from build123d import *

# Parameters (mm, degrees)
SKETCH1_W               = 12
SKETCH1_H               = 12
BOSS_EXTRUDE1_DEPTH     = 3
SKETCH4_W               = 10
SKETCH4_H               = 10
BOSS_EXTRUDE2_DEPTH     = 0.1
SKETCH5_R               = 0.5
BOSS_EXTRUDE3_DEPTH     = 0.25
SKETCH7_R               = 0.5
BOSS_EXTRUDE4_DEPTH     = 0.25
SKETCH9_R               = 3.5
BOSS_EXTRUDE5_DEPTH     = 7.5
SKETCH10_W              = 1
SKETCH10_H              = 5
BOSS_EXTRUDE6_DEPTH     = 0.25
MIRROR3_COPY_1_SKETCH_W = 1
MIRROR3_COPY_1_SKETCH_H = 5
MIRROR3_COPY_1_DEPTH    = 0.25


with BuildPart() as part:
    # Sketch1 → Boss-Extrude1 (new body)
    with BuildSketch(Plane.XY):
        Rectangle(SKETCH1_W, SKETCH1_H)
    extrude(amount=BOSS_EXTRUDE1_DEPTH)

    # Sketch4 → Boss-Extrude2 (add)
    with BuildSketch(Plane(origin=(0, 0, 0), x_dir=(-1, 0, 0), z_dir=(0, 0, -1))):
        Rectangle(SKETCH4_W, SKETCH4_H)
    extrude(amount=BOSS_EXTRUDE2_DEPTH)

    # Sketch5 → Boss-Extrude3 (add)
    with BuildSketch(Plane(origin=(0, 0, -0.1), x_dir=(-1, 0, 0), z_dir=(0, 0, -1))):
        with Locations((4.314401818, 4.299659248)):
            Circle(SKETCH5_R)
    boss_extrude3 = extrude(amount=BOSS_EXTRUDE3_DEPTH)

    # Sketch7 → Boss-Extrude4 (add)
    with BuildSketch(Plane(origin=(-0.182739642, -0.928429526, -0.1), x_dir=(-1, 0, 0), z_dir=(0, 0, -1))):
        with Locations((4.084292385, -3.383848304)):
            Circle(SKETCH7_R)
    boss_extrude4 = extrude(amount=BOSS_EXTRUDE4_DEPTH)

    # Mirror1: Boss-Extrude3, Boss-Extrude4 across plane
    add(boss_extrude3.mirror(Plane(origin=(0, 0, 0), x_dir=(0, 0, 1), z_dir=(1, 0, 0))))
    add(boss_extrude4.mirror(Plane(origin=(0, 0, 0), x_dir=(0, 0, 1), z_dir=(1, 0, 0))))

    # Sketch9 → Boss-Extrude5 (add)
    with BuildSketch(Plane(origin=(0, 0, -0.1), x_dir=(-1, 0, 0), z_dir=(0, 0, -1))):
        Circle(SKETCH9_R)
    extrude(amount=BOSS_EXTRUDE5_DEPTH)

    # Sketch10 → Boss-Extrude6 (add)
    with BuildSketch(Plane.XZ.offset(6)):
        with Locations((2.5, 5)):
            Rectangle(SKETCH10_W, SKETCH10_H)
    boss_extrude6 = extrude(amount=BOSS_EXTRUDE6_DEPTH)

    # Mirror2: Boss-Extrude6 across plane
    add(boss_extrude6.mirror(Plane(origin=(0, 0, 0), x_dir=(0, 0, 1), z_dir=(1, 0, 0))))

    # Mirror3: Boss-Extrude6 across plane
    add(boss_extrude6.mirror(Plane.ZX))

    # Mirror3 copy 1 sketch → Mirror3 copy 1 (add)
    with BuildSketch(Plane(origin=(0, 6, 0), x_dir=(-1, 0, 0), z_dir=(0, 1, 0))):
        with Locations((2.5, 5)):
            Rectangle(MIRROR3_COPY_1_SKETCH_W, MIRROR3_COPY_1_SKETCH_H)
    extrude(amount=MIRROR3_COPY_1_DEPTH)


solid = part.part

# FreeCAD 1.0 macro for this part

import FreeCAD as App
import Part
import Sketcher
from FreeCAD import Vector


def add_polygon(sketch, points):
    """Adds a closed chain of lines whose ends are joined by coincident constraints."""
    first, n = sketch.GeometryCount, len(points)
    for a, b in zip(points, points[1:] + points[:1]):
        sketch.addGeometry(Part.LineSegment(App.Vector(*a, 0), App.Vector(*b, 0)), False)
    for i in range(n):
        sketch.addConstraint(Sketcher.Constraint("Coincident", first + i, 2, first + (i + 1) % n, 1))

doc = App.newDocument("Part")
body = doc.addObject("PartDesign::Body", "Body")

# Sketch on XY plane
sketch1 = body.newObject("Sketcher::SketchObject", "Sketch")
sketch1.AttachmentSupport = (doc.getObject("XY_Plane"), [""])
sketch1.MapMode = "FlatFace"
add_polygon(sketch1, [(-6, 6), (-6, -6), (6, -6), (6, 6)])  # lines 0-3
sketch1.addConstraint([
    Sketcher.Constraint("Vertical", 0),
    Sketcher.Constraint("Horizontal", 1),
    Sketcher.Constraint("Vertical", 2),
    Sketcher.Constraint("Horizontal", 3),
    Sketcher.Constraint("Symmetric", 0, 2, 2, 2, -1, 1),
    Sketcher.Constraint("Equal", 3, 0),
    Sketcher.Constraint("DistanceX", 1, 1, 1, 2, 12.0),
])
pad1 = body.newObject("PartDesign::Pad", "Pad")
pad1.Profile = sketch1
pad1.Length = 3

# Sketch on XY plane
sketch2 = body.newObject("Sketcher::SketchObject", "Sketch001")
sketch2.AttachmentSupport = (doc.getObject("XY_Plane"), [""])
sketch2.MapMode = "FlatFace"
add_polygon(sketch2, [(5, 5), (5, -5), (-5, -5), (-5, 5)])  # lines 0-3
sketch2.addConstraint([
    Sketcher.Constraint("Vertical", 0),
    Sketcher.Constraint("Horizontal", 1),
    Sketcher.Constraint("Vertical", 2),
    Sketcher.Constraint("Horizontal", 3),
    Sketcher.Constraint("Symmetric", 0, 2, 2, 2, -1, 1),
    Sketcher.Constraint("Equal", 3, 0),
    Sketcher.Constraint("DistanceX", 1, 2, 1, 1, 10.0),
])
pad2 = body.newObject("PartDesign::Pad", "Pad001")
pad2.Profile = sketch2
pad2.Length = 0.1
pad2.Reversed = True

# Sketch on XY plane
sketch3 = body.newObject("Sketcher::SketchObject", "Sketch002")
sketch3.AttachmentSupport = (doc.getObject("XY_Plane"), [""])
sketch3.MapMode = "FlatFace"
sketch3.AttachmentOffset = App.Placement(Vector(0, 0, -0.1), App.Rotation())
sketch3.addGeometry(Part.Circle(Vector(-4.3, 4.3, 0), Vector(0, 0, 1), 0.5), False)
sketch3.addConstraint([
    Sketcher.Constraint("Diameter", 0, 1.0),
    Sketcher.Constraint("DistanceX", 0, 3, -1, 1, 4.314402),
    Sketcher.Constraint("DistanceY", -1, 1, 0, 3, 4.299659),
])
pad3 = body.newObject("PartDesign::Pad", "Pad002")
pad3.Profile = sketch3
pad3.Length = 0.25
pad3.Reversed = True

# Sketch on XY plane
sketch4 = body.newObject("Sketcher::SketchObject", "Sketch003")
sketch4.AttachmentSupport = (doc.getObject("XY_Plane"), [""])
sketch4.MapMode = "FlatFace"
sketch4.AttachmentOffset = App.Placement(Vector(0, 0, -0.1), App.Rotation())
sketch4.addGeometry(Part.Circle(Vector(-4.3, -4.3, 0), Vector(0, 0, 1), 0.5), False)
sketch4.addConstraint([
    Sketcher.Constraint("Diameter", 0, 1.0),
    Sketcher.Constraint("DistanceX", 0, 3, -1, 1, 4.267032),
    Sketcher.Constraint("DistanceY", 0, 3, -1, 1, 4.312278),
])
pad4 = body.newObject("PartDesign::Pad", "Pad003")
pad4.Profile = sketch4
pad4.Length = 0.25
pad4.Reversed = True
doc.recompute()

mirrored = body.newObject("PartDesign::Mirrored", "Mirrored")
mirrored.Originals = [pad3, pad4]
mirrored.MirrorPlane = (doc.getObject("YZ_Plane"), [""])
body.Tip = mirrored

# Sketch on XY plane
sketch5 = body.newObject("Sketcher::SketchObject", "Sketch004")
sketch5.AttachmentSupport = (doc.getObject("XY_Plane"), [""])
sketch5.MapMode = "FlatFace"
sketch5.AttachmentOffset = App.Placement(Vector(0, 0, -0.1), App.Rotation())
sketch5.addGeometry(Part.Circle(Vector(0, 0, 0), Vector(0, 0, 1), 3.5), False)
sketch5.addConstraint([
    Sketcher.Constraint("Coincident", 0, 3, -1, 1),
    Sketcher.Constraint("Diameter", 0, 7.0),
])
pad5 = body.newObject("PartDesign::Pad", "Pad004")
pad5.Profile = sketch5
pad5.Length = 7.5
pad5.Reversed = True

# Sketch on XZ plane
sketch6 = body.newObject("Sketcher::SketchObject", "Sketch005")
sketch6.AttachmentSupport = (doc.getObject("XZ_Plane"), [""])
sketch6.MapMode = "FlatFace"
sketch6.AttachmentOffset = App.Placement(Vector(0, 0, 6), App.Rotation())
add_polygon(sketch6, [(2, 7.5), (2, 2.5), (3, 2.5), (3, 7.5)])  # lines 0-3
sketch6.addConstraint([
    Sketcher.Constraint("Vertical", 0),
    Sketcher.Constraint("Horizontal", 1),
    Sketcher.Constraint("Vertical", 2),
    Sketcher.Constraint("Horizontal", 3),
    Sketcher.Constraint("DistanceX", 1, 1, 1, 2, 1.0),
    Sketcher.Constraint("DistanceY", 0, 2, 0, 1, 5.0),
    Sketcher.Constraint("DistanceX", -1, 1, 0, 2, 2.0),
    Sketcher.Constraint("DistanceY", -1, 1, 0, 2, 2.5),
])
pad6 = body.newObject("PartDesign::Pad", "Pad005")
pad6.Profile = sketch6
pad6.Length = 0.25
doc.recompute()

mirrored2 = body.newObject("PartDesign::Mirrored", "Mirrored001")
mirrored2.Originals = [pad6]
mirrored2.MirrorPlane = (doc.getObject("YZ_Plane"), [""])
body.Tip = mirrored2
doc.recompute()

mirrored3 = body.newObject("PartDesign::Mirrored", "Mirrored002")
mirrored3.Originals = [pad6]
mirrored3.MirrorPlane = (doc.getObject("XZ_Plane"), [""])
body.Tip = mirrored3

# Sketch on XZ plane
sketch7 = body.newObject("Sketcher::SketchObject", "Sketch006")
sketch7.AttachmentSupport = (doc.getObject("XZ_Plane"), [""])
sketch7.MapMode = "FlatFace"
sketch7.AttachmentOffset = App.Placement(Vector(0, 0, -6), App.Rotation())
add_polygon(sketch7, [(-2, 7.5), (-2, 2.5), (-3, 2.5), (-3, 7.5)])  # lines 0-3
sketch7.addConstraint([
    Sketcher.Constraint("Vertical", 0),
    Sketcher.Constraint("Horizontal", 1),
    Sketcher.Constraint("Vertical", 2),
    Sketcher.Constraint("Horizontal", 3),
    Sketcher.Constraint("DistanceX", 1, 2, 1, 1, 1.0),
    Sketcher.Constraint("DistanceY", 0, 2, 0, 1, 5.0),
    Sketcher.Constraint("DistanceX", 0, 2, -1, 1, 2.0),
    Sketcher.Constraint("DistanceY", -1, 1, 0, 2, 2.5),
])
pad7 = body.newObject("PartDesign::Pad", "Pad006")
pad7.Profile = sketch7
pad7.Length = 0.25
pad7.Reversed = True

doc.recompute()
